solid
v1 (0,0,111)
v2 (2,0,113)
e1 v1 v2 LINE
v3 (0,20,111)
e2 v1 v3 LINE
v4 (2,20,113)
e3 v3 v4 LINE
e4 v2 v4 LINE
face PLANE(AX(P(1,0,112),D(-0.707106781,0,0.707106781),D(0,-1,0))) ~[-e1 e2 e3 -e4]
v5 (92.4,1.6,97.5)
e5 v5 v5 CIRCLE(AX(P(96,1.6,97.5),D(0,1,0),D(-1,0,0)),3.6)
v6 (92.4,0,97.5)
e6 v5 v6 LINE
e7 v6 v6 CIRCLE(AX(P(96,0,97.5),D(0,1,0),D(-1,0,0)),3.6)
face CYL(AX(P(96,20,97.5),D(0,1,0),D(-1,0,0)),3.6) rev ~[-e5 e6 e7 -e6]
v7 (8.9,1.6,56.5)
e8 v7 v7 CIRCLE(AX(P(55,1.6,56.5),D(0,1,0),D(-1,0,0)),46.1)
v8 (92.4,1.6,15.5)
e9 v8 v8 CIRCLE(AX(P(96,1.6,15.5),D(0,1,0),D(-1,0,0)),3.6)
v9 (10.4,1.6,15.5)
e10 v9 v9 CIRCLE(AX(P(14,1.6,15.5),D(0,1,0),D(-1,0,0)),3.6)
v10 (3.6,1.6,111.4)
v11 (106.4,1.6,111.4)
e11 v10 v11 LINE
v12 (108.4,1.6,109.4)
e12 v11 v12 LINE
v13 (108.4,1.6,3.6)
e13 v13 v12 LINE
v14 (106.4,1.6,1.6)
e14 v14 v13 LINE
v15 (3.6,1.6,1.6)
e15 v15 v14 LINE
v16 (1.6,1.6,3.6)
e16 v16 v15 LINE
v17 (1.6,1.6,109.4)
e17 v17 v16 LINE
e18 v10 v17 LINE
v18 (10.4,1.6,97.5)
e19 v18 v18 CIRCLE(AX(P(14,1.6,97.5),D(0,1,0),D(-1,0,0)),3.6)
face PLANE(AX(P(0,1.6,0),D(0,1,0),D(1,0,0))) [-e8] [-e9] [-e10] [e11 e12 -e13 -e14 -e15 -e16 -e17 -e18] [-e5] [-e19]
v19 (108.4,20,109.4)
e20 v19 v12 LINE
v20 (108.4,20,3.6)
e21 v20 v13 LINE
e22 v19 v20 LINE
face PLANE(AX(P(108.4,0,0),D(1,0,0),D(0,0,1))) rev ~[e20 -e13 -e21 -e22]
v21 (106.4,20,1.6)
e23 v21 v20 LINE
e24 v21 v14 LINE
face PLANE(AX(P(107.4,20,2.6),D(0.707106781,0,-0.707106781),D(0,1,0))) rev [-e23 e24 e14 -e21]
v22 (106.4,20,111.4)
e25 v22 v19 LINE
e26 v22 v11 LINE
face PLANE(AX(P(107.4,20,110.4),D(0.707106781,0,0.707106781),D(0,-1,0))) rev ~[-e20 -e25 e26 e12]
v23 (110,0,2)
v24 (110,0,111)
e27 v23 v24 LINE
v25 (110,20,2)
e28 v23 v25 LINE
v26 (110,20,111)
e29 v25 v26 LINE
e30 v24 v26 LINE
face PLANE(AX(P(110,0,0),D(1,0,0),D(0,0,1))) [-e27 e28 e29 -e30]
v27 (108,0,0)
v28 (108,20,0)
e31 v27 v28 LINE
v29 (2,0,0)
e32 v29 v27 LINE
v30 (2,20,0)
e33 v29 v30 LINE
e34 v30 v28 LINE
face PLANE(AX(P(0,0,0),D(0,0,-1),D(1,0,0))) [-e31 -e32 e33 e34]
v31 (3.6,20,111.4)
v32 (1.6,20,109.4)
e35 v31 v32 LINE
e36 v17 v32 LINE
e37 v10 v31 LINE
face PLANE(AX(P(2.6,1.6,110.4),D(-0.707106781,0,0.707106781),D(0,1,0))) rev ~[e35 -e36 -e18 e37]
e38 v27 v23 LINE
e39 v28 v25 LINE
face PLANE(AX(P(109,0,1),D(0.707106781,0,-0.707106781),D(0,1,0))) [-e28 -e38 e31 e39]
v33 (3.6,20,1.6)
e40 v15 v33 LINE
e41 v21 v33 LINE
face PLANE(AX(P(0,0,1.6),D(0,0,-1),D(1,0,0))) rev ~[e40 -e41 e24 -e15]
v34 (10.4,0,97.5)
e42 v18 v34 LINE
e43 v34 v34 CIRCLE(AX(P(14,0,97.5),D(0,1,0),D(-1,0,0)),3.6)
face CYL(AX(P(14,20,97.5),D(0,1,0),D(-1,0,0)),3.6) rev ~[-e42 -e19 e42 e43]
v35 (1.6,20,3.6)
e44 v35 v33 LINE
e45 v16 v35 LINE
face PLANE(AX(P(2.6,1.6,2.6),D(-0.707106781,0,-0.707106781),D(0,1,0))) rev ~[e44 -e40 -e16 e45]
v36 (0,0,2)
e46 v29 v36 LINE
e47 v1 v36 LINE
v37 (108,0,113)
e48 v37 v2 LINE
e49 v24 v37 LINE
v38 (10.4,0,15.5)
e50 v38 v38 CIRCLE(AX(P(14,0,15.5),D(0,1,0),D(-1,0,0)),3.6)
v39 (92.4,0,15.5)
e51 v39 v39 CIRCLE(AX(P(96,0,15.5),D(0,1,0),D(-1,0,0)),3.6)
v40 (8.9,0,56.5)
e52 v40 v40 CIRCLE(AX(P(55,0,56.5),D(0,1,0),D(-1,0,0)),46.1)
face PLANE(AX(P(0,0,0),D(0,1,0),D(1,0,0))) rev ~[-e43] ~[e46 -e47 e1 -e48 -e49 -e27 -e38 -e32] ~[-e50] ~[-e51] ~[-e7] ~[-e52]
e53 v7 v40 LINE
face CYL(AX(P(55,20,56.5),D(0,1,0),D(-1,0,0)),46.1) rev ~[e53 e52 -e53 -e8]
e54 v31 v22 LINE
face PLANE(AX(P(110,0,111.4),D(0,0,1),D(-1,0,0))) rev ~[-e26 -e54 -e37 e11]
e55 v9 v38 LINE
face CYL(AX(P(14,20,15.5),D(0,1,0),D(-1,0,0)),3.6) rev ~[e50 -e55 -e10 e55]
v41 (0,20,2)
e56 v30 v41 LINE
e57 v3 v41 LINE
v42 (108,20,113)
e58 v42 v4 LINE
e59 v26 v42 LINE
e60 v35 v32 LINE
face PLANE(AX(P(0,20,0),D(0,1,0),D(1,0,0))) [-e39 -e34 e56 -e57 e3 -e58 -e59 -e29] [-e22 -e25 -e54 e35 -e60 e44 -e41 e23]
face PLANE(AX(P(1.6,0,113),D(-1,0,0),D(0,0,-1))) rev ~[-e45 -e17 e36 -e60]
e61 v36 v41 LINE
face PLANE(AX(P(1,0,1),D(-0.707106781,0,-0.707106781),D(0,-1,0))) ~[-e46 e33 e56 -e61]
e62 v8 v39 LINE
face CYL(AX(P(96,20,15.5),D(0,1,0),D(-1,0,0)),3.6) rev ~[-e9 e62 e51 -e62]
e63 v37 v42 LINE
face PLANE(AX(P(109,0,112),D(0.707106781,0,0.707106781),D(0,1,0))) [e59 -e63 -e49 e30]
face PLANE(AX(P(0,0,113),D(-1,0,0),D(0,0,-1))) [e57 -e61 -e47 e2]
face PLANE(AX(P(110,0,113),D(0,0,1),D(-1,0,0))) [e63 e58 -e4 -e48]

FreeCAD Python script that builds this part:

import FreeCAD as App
import Part
import Sketcher


def edges_at(feature, points):
    """Names of the edges that pass closest to the given points."""
    edges = feature.Shape.Edges
    near = lambda p: min(range(len(edges)), key=lambda i: edges[i].distToShape(Part.Vertex(*p))[0])
    return sorted({f"Edge{near(p) + 1}" for p in points})


def faces_at(feature, points):
    """Names of the faces that lie closest to the given points."""
    faces = feature.Shape.Faces
    near = lambda p: min(range(len(faces)), key=lambda i: faces[i].distToShape(Part.Vertex(*p))[0])
    return sorted({f"Face{near(p) + 1}" for p in points})


def add_polygon(sketch, points):
    """Adds a closed chain of lines whose ends are joined by coincident constraints."""
    first, n = sketch.GeometryCount, len(points)
    for a, b in zip(points, points[1:] + points[:1]):
        sketch.addGeometry(Part.LineSegment(App.Vector(*a, 0), App.Vector(*b, 0)), False)
    for i in range(n):
        sketch.addConstraint(Sketcher.Constraint("Coincident", first + i, 2, first + (i + 1) % n, 1))

doc = App.newDocument("Part")
body = doc.addObject("PartDesign::Body", "Body")

sketch1 = body.newObject("Sketcher::SketchObject", "Sketch")
sketch1.AttachmentSupport = (doc.getObject("XZ_Plane"), [""])
sketch1.MapMode = "FlatFace"
add_polygon(sketch1, [(110, 0), (0, 0), (0, 113), (110, 113)])
sketch1.addGeometry(Part.Circle(App.Vector(55, 56.5, 0), App.Vector(0, 0, 1), 44.5), False)
sketch1.addGeometry(Part.Circle(App.Vector(96, 15.5, 0), App.Vector(0, 0, 1), 2), False)
sketch1.addGeometry(Part.Circle(App.Vector(14, 97.5, 0), App.Vector(0, 0, 1), 2), False)
sketch1.addGeometry(Part.Circle(App.Vector(96, 97.5, 0), App.Vector(0, 0, 1), 2), False)
sketch1.addGeometry(Part.Circle(App.Vector(14, 15.5, 0), App.Vector(0, 0, 1), 2), False)
sketch1.addConstraint(Sketcher.Constraint("Horizontal", 0))
sketch1.addConstraint(Sketcher.Constraint("Vertical", 1))
sketch1.addConstraint(Sketcher.Constraint("Horizontal", 2))
sketch1.addConstraint(Sketcher.Constraint("Vertical", 3))
sketch1.addConstraint(Sketcher.Constraint("Coincident", 0, 2, -1, 1))
sketch1.addConstraint(Sketcher.Constraint("Equal", 5, 6))
sketch1.addConstraint(Sketcher.Constraint("Equal", 6, 7))
sketch1.addConstraint(Sketcher.Constraint("Equal", 7, 8))
sketch1.addConstraint(Sketcher.Constraint("Horizontal", 6, 3, 7, 3))
sketch1.addConstraint(Sketcher.Constraint("Horizontal", 5, 3, 8, 3))
sketch1.addConstraint(Sketcher.Constraint("Vertical", 5, 3, 7, 3))
sketch1.addConstraint(Sketcher.Constraint("Vertical", 6, 3, 8, 3))
sketch1.addConstraint(Sketcher.Constraint("Diameter", 4, 89.0))
sketch1.addConstraint(Sketcher.Constraint("Diameter", 5, 4.0))
sketch1.addConstraint(Sketcher.Constraint("DistanceX", 0, 2, 0, 1, 110.0))
sketch1.addConstraint(Sketcher.Constraint("DistanceY", 1, 1, 1, 2, 113.0))
sketch1.addConstraint(Sketcher.Constraint("DistanceX", 6, 3, 5, 3, 82.0))
sketch1.addConstraint(Sketcher.Constraint("DistanceY", 5, 3, 6, 3, 82.0))
sketch1.addConstraint(Sketcher.Constraint("DistanceX", -1, 1, 4, 3, 55.0))
sketch1.addConstraint(Sketcher.Constraint("DistanceX", -1, 1, 5, 3, 96.0))
sketch1.addConstraint(Sketcher.Constraint("DistanceY", 5, 3, 4, 3, 41.0))
sketch1.addConstraint(Sketcher.Constraint("DistanceY", -1, 1, 4, 3, 56.5))
pad1 = body.newObject("PartDesign::Pad", "Pad")
pad1.Profile = sketch1
pad1.Length = 20
pad1.Reversed = True
doc.recompute()

thickness = body.newObject("PartDesign::Thickness", "Thickness")
thickness.Base = (pad1, faces_at(pad1, [(56.108, 20, 108.959)]))
thickness.Value = 1.6
thickness.Reversed = True
thickness.Join = "Intersection"

sketch2 = body.newObject("Sketcher::SketchObject", "Sketch001")
sketch2.AttachmentSupport = (doc.getObject("XZ_Plane"), [""])
sketch2.MapMode = "FlatFace"
sketch2.AttachmentOffset = App.Placement(App.Vector(0, 0, -20), App.Rotation())
sketch2.addGeometry(Part.Circle(App.Vector(96, 97.5, 0), App.Vector(0, 0, 1), 3.6), False)
sketch2.addGeometry(Part.Circle(App.Vector(96, 97.5, 0), App.Vector(0, 0, 1), 2), False)
sketch2.addGeometry(Part.Circle(App.Vector(14, 15.5, 0), App.Vector(0, 0, 1), 3.6), False)
sketch2.addGeometry(Part.Circle(App.Vector(14, 15.5, 0), App.Vector(0, 0, 1), 2), False)
sketch2.addGeometry(Part.Circle(App.Vector(14, 97.5, 0), App.Vector(0, 0, 1), 3.6), False)
sketch2.addGeometry(Part.Circle(App.Vector(14, 97.5, 0), App.Vector(0, 0, 1), 2), False)
sketch2.addGeometry(Part.Circle(App.Vector(96, 15.5, 0), App.Vector(0, 0, 1), 3.6), False)
sketch2.addGeometry(Part.Circle(App.Vector(96, 15.5, 0), App.Vector(0, 0, 1), 2), False)
sketch2.addGeometry(Part.Circle(App.Vector(55, 56.5, 0), App.Vector(0, 0, 1), 46.1), False)
sketch2.addGeometry(Part.Circle(App.Vector(55, 56.5, 0), App.Vector(0, 0, 1), 44.5), False)
sketch2.addConstraint(Sketcher.Constraint("Coincident", 1, 3, 0, 3))
sketch2.addConstraint(Sketcher.Constraint("Coincident", 3, 3, 2, 3))
sketch2.addConstraint(Sketcher.Constraint("Coincident", 5, 3, 4, 3))
sketch2.addConstraint(Sketcher.Constraint("Coincident", 7, 3, 6, 3))
sketch2.addConstraint(Sketcher.Constraint("Coincident", 9, 3, 8, 3))
sketch2.addConstraint(Sketcher.Constraint("Equal", 0, 2))
sketch2.addConstraint(Sketcher.Constraint("Equal", 1, 3))
sketch2.addConstraint(Sketcher.Constraint("Equal", 2, 4))
sketch2.addConstraint(Sketcher.Constraint("Equal", 3, 5))
sketch2.addConstraint(Sketcher.Constraint("Equal", 4, 6))
sketch2.addConstraint(Sketcher.Constraint("Equal", 5, 7))
sketch2.addConstraint(Sketcher.Constraint("Horizontal", 1, 3, 4, 3))
sketch2.addConstraint(Sketcher.Constraint("Horizontal", 3, 3, 6, 3))
sketch2.addConstraint(Sketcher.Constraint("Vertical", 3, 3, 4, 3))
sketch2.addConstraint(Sketcher.Constraint("Vertical", 1, 3, 6, 3))
sketch2.addConstraint(Sketcher.Constraint("Diameter", 1, 4.0))
sketch2.addConstraint(Sketcher.Constraint("Diameter", 9, 89.0))
sketch2.addConstraint(Sketcher.Constraint("Diameter", 0, 7.2))
sketch2.addConstraint(Sketcher.Constraint("Diameter", 8, 92.2))
sketch2.addConstraint(Sketcher.Constraint("DistanceX", -1, 1, 0, 3, 96.0))
sketch2.addConstraint(Sketcher.Constraint("DistanceX", -1, 1, 2, 3, 14.0))
sketch2.addConstraint(Sketcher.Constraint("DistanceX", -1, 1, 8, 3, 55.0))
sketch2.addConstraint(Sketcher.Constraint("DistanceY", 2, 3, 0, 3, 82.0))
sketch2.addConstraint(Sketcher.Constraint("DistanceY", 8, 3, 0, 3, 41.0))
sketch2.addConstraint(Sketcher.Constraint("DistanceY", -1, 1, 0, 3, 97.5))
pocket1 = body.newObject("PartDesign::Pocket", "Pocket")
pocket1.Profile = sketch2
pocket1.Length = 20
pocket1.Reversed = True
doc.recompute()

chamfer = body.newObject("PartDesign::Chamfer", "Chamfer")
chamfer.Base = (pocket1, edges_at(pocket1, [
    (0, 10, 113),
    (110, 10, 113),
    (0, 10, 0),
    (110, 10, 0),
]))
chamfer.Size = 2
doc.recompute()

chamfer2 = body.newObject("PartDesign::Chamfer", "Chamfer001")
chamfer2.Base = (chamfer, edges_at(chamfer, [
    (108.4, 10.8, 1.6),
    (1.6, 10.8, 1.6),
    (1.6, 10.8, 111.4),
    (108.4, 10.8, 111.4),
]))
chamfer2.Size = 2

doc.recompute()
